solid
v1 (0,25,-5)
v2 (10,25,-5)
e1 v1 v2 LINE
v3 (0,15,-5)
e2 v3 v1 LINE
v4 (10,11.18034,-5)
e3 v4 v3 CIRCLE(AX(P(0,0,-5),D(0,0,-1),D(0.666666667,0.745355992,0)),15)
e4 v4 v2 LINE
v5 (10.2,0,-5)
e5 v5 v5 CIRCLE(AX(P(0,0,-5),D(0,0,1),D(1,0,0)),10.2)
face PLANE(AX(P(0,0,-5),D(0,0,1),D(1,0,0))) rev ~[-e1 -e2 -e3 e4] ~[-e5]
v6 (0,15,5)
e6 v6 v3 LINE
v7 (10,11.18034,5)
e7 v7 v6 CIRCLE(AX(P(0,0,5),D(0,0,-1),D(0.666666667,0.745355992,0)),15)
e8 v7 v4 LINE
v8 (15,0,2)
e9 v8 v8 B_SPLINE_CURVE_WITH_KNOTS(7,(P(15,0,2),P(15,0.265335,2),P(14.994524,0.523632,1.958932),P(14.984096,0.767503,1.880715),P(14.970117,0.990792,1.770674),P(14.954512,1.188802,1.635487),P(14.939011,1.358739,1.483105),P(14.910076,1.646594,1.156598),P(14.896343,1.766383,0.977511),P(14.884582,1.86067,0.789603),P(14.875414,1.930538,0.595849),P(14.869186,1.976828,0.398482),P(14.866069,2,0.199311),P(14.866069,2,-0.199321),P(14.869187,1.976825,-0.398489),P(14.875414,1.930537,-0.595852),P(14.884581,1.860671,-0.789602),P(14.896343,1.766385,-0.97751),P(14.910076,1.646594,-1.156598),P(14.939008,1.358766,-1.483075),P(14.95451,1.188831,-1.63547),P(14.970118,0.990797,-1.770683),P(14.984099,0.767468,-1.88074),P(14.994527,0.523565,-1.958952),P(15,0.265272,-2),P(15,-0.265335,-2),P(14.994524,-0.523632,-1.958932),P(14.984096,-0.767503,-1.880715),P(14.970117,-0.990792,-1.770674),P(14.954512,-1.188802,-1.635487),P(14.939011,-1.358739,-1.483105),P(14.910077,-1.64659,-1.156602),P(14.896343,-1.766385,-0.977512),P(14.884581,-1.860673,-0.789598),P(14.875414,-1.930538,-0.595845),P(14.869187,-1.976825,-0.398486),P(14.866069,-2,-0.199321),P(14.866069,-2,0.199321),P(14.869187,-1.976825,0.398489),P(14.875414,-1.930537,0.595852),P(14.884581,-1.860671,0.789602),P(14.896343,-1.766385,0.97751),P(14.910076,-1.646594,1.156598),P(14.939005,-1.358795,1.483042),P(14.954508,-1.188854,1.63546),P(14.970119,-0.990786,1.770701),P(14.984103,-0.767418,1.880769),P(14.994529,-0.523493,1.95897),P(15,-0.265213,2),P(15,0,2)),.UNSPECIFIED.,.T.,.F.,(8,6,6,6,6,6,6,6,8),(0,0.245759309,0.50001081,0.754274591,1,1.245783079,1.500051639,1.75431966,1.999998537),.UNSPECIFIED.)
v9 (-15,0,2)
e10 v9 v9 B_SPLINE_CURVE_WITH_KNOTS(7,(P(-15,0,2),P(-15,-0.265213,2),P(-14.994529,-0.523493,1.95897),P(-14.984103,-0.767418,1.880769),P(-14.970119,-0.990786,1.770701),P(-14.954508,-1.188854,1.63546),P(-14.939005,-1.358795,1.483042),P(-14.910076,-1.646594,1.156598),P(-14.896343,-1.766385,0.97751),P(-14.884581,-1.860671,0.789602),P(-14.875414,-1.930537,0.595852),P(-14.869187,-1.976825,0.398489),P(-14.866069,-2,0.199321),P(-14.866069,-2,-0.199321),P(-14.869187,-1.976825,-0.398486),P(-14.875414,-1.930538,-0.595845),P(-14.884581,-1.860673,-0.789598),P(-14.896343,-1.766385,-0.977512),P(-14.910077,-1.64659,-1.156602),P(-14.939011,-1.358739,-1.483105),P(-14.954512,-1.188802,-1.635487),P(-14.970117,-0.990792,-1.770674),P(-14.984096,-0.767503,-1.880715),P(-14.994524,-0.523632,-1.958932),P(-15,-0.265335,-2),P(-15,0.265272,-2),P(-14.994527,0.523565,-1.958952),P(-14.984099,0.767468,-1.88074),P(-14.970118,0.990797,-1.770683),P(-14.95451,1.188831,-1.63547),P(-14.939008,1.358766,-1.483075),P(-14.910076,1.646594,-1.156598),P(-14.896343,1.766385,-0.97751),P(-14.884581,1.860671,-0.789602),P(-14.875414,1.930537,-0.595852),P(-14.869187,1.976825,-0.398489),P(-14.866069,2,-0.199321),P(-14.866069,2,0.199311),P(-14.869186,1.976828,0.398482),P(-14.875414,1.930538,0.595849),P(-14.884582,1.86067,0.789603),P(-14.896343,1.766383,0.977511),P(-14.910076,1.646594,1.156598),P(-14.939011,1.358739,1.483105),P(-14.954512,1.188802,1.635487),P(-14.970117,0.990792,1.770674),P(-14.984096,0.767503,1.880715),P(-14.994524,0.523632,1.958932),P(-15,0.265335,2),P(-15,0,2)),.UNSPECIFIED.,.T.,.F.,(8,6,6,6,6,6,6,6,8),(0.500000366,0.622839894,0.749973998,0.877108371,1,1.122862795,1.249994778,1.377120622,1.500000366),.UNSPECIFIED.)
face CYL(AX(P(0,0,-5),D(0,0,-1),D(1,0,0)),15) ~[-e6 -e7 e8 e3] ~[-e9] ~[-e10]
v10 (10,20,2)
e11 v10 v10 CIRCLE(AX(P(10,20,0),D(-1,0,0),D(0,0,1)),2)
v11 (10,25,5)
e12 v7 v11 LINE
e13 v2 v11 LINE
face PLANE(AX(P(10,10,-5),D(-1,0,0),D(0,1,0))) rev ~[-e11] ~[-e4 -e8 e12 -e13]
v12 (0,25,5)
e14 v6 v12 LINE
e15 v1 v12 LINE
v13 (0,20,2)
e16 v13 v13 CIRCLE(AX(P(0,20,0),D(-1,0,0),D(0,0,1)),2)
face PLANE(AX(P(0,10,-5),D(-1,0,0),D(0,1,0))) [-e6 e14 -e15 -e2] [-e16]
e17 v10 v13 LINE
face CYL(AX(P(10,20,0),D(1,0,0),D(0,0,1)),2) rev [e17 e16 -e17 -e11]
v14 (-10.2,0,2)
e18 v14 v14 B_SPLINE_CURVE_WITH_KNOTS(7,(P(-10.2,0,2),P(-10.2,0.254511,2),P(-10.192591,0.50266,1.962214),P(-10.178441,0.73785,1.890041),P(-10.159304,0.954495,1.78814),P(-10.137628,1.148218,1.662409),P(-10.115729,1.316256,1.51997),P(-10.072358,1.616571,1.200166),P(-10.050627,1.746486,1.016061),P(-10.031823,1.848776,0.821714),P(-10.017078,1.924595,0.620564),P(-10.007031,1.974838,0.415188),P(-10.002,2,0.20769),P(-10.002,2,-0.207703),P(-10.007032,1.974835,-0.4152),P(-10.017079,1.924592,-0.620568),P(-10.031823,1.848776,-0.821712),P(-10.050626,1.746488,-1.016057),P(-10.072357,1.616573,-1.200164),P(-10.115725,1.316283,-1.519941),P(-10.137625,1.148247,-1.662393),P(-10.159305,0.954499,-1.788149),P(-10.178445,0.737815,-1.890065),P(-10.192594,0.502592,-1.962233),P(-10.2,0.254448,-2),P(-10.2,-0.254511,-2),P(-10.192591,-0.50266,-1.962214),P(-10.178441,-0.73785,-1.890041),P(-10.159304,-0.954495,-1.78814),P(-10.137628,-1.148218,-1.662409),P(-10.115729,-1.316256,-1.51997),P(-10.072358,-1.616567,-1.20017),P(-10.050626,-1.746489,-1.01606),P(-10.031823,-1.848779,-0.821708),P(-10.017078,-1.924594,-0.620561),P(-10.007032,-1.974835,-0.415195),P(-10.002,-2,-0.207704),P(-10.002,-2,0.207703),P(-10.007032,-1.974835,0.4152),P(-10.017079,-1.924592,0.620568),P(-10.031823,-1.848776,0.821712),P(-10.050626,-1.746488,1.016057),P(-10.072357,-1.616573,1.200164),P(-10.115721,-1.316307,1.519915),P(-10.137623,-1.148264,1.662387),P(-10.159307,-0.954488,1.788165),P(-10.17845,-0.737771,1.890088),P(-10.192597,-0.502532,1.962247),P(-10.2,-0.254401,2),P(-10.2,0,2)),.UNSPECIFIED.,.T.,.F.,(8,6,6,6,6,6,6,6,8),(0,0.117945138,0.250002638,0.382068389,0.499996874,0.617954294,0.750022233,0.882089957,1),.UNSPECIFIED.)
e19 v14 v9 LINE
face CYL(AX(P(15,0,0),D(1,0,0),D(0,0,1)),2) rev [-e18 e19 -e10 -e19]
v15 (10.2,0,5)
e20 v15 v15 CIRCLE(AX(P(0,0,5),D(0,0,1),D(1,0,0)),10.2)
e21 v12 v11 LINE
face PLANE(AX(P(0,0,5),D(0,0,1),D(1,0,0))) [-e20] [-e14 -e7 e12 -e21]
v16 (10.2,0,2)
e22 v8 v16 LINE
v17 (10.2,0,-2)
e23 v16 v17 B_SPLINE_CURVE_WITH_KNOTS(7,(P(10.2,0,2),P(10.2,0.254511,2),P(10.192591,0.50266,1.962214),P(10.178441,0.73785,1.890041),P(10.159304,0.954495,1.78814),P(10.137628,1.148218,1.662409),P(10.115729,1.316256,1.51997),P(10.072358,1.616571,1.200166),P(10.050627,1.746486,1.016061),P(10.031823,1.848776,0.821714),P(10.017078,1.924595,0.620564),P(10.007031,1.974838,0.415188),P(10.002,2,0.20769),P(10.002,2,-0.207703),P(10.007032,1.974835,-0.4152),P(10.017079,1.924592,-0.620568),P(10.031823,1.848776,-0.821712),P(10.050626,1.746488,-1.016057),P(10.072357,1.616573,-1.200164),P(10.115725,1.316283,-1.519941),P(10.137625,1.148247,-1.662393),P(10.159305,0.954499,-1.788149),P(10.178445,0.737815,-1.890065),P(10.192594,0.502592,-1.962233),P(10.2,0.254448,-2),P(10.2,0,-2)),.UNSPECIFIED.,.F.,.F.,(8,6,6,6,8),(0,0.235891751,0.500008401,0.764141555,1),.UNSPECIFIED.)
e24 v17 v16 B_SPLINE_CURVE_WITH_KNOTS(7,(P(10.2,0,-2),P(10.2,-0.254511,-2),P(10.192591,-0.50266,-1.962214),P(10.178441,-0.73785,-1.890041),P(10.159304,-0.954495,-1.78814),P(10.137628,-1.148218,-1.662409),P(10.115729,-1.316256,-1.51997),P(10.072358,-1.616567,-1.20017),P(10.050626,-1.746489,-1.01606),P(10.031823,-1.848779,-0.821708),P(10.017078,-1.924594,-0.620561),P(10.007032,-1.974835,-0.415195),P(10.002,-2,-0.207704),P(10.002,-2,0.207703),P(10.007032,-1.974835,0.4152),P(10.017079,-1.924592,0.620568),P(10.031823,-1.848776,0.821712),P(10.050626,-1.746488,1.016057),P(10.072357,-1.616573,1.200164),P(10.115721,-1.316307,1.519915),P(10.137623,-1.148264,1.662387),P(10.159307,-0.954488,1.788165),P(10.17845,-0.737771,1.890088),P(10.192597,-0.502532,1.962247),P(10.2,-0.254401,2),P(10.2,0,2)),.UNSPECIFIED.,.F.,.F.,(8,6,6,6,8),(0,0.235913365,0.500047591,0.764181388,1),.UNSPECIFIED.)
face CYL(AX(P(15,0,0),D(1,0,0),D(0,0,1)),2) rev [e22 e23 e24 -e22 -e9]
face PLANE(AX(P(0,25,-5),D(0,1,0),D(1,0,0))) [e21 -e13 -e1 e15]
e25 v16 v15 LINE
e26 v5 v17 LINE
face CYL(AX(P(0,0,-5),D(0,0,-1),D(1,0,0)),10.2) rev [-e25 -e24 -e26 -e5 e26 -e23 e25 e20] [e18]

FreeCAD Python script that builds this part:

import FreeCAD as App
import Part
import Sketcher
from FreeCAD import Vector
Q = App.Units.Quantity

doc = App.newDocument("Part")
body = doc.addObject("PartDesign::Body", "Body")

# Sketch on YZ plane
sketch1 = doc.addObject("Sketcher::SketchObject", "Sketch")
body.addObject(sketch1)
sketch1.AttachmentSupport = (doc.YZ_Plane, [""])
sketch1.MapMode = "FlatFace"
sketch1.AttachmentOffset = App.Placement(Vector(0, 0, 10), App.Rotation())
sketch1.addGeometry(Part.Circle(Vector(20, 0, 0), Vector(0, 0, 1), 2), False)
sketch1.addConstraint(Sketcher.Constraint("PointOnObject", 0, 3, -1))
sketch1.addConstraint(Sketcher.Constraint("Diameter", 0, Q("4 mm")))
sketch1.addConstraint(Sketcher.Constraint("DistanceX", -1, 1, 0, 3, Q("20 mm")))
pad1 = doc.addObject("PartDesign::Pad", "Pad")
body.addObject(pad1)
pad1.Profile = sketch1
pad1.Length = 10
pad1.Reversed = True
body2 = doc.addObject("PartDesign::Body", "Body001")

# Sketch on YZ plane
sketch2 = doc.addObject("Sketcher::SketchObject", "Sketch001")
body2.addObject(sketch2)
sketch2.AttachmentSupport = (doc.getObject("YZ_Plane001"), [""])
sketch2.MapMode = "FlatFace"
sketch2.AttachmentOffset = App.Placement(Vector(0, 0, 15), App.Rotation())
sketch2.addGeometry(Part.Circle(Vector(0, 0, 0), Vector(0, 0, 1), 2), False)
sketch2.addConstraint(Sketcher.Constraint("Coincident", 0, 3, -1, 1))
sketch2.addConstraint(Sketcher.Constraint("Diameter", 0, Q("4 mm")))
pad2 = doc.addObject("PartDesign::Pad", "Pad001")
body2.addObject(pad2)
pad2.Profile = sketch2
pad2.Length = 30
pad2.Reversed = True
body3 = doc.addObject("PartDesign::Body", "Body002")
body3.AllowCompound = True

# Sketch on XY plane
sketch3 = doc.addObject("Sketcher::SketchObject", "Sketch002")
body3.addObject(sketch3)
sketch3.AttachmentSupport = (doc.getObject("XY_Plane002"), [""])
sketch3.MapMode = "FlatFace"
sketch3.AttachmentOffset = App.Placement(Vector(0, 0, -5), App.Rotation())
sketch3.addGeometry(Part.Circle(Vector(0, 0, 0), Vector(0, 0, 1), 10), False)
sketch3.addConstraint(Sketcher.Constraint("Coincident", 0, 3, -1, 1))
sketch3.addConstraint(Sketcher.Constraint("Diameter", 0, Q("20.4 mm")))
pad3 = doc.addObject("PartDesign::Pad", "Pad002")
body3.addObject(pad3)
pad3.Profile = sketch3
pad3.Length = 10
doc.recompute()

boolean = doc.addObject("PartDesign::Boolean", "Boolean")
body3.addObject(boolean)
boolean.Type = "Fuse"
boolean.addObjects([body])
doc.recompute()

boolean2 = doc.addObject("PartDesign::Boolean", "Boolean001")
body3.addObject(boolean2)
boolean2.Type = "Fuse"
boolean2.addObjects([body2])
body4 = doc.addObject("PartDesign::Body", "Body003")

# Sketch on XY plane
sketch4 = doc.addObject("Sketcher::SketchObject", "Sketch003")
body4.addObject(sketch4)
sketch4.AttachmentSupport = (doc.getObject("XY_Plane003"), [""])
sketch4.MapMode = "FlatFace"
sketch4.AttachmentOffset = App.Placement(Vector(0, 0, -5), App.Rotation())
sketch4.addGeometry(Part.LineSegment(Vector(0, 25, 0), Vector(0, 10, 0)), False)
sketch4.addGeometry(Part.LineSegment(Vector(0, 10, 0), Vector(10, 10, 0)), False)
sketch4.addGeometry(Part.LineSegment(Vector(10, 10, 0), Vector(10, 25, 0)), False)
sketch4.addGeometry(Part.LineSegment(Vector(10, 25, 0), Vector(0, 25, 0)), False)
sketch4.addConstraint(Sketcher.Constraint("Coincident", 0, 2, 1, 1))
sketch4.addConstraint(Sketcher.Constraint("Coincident", 1, 2, 2, 1))
sketch4.addConstraint(Sketcher.Constraint("Coincident", 2, 2, 3, 1))
sketch4.addConstraint(Sketcher.Constraint("Coincident", 3, 2, 0, 1))
sketch4.addConstraint(Sketcher.Constraint("Vertical", 0))
sketch4.addConstraint(Sketcher.Constraint("Horizontal", 1))
sketch4.addConstraint(Sketcher.Constraint("Vertical", 2))
sketch4.addConstraint(Sketcher.Constraint("Horizontal", 3))
sketch4.addConstraint(Sketcher.Constraint("PointOnObject", 0, 2, -2))
sketch4.addConstraint(Sketcher.Constraint("DistanceX", 1, 1, 1, 2, Q("10 mm")))
sketch4.addConstraint(Sketcher.Constraint("DistanceY", 0, 2, 0, 1, Q("15 mm")))
sketch4.addConstraint(Sketcher.Constraint("DistanceY", -1, 1, 0, 2, Q("10 mm")))
pad4 = doc.addObject("PartDesign::Pad", "Pad003")
body4.addObject(pad4)
pad4.Profile = sketch4
pad4.Length = 10
body5 = doc.addObject("PartDesign::Body", "Body004")

# Sketch on XY plane
sketch5 = doc.addObject("Sketcher::SketchObject", "Sketch004")
body5.addObject(sketch5)
sketch5.AttachmentSupport = (doc.getObject("XY_Plane004"), [""])
sketch5.MapMode = "FlatFace"
sketch5.AttachmentOffset = App.Placement(Vector(0, 0, -5), App.Rotation())
sketch5.addGeometry(Part.Circle(Vector(0, 0, 0), Vector(0, 0, 1), 15), False)
sketch5.addConstraint(Sketcher.Constraint("Coincident", 0, 3, -1, 1))
sketch5.addConstraint(Sketcher.Constraint("Diameter", 0, Q("30 mm")))
pad5 = doc.addObject("PartDesign::Pad", "Pad004")
body5.addObject(pad5)
pad5.Profile = sketch5
pad5.Length = 10
doc.recompute()

boolean3 = doc.addObject("PartDesign::Boolean", "Boolean002")
body5.addObject(boolean3)
boolean3.Type = "Fuse"
boolean3.addObjects([body4])
doc.recompute()

boolean4 = doc.addObject("PartDesign::Boolean", "Boolean003")
body5.addObject(boolean4)
boolean4.Type = "Cut"
boolean4.addObjects([body3])

doc.recompute()
